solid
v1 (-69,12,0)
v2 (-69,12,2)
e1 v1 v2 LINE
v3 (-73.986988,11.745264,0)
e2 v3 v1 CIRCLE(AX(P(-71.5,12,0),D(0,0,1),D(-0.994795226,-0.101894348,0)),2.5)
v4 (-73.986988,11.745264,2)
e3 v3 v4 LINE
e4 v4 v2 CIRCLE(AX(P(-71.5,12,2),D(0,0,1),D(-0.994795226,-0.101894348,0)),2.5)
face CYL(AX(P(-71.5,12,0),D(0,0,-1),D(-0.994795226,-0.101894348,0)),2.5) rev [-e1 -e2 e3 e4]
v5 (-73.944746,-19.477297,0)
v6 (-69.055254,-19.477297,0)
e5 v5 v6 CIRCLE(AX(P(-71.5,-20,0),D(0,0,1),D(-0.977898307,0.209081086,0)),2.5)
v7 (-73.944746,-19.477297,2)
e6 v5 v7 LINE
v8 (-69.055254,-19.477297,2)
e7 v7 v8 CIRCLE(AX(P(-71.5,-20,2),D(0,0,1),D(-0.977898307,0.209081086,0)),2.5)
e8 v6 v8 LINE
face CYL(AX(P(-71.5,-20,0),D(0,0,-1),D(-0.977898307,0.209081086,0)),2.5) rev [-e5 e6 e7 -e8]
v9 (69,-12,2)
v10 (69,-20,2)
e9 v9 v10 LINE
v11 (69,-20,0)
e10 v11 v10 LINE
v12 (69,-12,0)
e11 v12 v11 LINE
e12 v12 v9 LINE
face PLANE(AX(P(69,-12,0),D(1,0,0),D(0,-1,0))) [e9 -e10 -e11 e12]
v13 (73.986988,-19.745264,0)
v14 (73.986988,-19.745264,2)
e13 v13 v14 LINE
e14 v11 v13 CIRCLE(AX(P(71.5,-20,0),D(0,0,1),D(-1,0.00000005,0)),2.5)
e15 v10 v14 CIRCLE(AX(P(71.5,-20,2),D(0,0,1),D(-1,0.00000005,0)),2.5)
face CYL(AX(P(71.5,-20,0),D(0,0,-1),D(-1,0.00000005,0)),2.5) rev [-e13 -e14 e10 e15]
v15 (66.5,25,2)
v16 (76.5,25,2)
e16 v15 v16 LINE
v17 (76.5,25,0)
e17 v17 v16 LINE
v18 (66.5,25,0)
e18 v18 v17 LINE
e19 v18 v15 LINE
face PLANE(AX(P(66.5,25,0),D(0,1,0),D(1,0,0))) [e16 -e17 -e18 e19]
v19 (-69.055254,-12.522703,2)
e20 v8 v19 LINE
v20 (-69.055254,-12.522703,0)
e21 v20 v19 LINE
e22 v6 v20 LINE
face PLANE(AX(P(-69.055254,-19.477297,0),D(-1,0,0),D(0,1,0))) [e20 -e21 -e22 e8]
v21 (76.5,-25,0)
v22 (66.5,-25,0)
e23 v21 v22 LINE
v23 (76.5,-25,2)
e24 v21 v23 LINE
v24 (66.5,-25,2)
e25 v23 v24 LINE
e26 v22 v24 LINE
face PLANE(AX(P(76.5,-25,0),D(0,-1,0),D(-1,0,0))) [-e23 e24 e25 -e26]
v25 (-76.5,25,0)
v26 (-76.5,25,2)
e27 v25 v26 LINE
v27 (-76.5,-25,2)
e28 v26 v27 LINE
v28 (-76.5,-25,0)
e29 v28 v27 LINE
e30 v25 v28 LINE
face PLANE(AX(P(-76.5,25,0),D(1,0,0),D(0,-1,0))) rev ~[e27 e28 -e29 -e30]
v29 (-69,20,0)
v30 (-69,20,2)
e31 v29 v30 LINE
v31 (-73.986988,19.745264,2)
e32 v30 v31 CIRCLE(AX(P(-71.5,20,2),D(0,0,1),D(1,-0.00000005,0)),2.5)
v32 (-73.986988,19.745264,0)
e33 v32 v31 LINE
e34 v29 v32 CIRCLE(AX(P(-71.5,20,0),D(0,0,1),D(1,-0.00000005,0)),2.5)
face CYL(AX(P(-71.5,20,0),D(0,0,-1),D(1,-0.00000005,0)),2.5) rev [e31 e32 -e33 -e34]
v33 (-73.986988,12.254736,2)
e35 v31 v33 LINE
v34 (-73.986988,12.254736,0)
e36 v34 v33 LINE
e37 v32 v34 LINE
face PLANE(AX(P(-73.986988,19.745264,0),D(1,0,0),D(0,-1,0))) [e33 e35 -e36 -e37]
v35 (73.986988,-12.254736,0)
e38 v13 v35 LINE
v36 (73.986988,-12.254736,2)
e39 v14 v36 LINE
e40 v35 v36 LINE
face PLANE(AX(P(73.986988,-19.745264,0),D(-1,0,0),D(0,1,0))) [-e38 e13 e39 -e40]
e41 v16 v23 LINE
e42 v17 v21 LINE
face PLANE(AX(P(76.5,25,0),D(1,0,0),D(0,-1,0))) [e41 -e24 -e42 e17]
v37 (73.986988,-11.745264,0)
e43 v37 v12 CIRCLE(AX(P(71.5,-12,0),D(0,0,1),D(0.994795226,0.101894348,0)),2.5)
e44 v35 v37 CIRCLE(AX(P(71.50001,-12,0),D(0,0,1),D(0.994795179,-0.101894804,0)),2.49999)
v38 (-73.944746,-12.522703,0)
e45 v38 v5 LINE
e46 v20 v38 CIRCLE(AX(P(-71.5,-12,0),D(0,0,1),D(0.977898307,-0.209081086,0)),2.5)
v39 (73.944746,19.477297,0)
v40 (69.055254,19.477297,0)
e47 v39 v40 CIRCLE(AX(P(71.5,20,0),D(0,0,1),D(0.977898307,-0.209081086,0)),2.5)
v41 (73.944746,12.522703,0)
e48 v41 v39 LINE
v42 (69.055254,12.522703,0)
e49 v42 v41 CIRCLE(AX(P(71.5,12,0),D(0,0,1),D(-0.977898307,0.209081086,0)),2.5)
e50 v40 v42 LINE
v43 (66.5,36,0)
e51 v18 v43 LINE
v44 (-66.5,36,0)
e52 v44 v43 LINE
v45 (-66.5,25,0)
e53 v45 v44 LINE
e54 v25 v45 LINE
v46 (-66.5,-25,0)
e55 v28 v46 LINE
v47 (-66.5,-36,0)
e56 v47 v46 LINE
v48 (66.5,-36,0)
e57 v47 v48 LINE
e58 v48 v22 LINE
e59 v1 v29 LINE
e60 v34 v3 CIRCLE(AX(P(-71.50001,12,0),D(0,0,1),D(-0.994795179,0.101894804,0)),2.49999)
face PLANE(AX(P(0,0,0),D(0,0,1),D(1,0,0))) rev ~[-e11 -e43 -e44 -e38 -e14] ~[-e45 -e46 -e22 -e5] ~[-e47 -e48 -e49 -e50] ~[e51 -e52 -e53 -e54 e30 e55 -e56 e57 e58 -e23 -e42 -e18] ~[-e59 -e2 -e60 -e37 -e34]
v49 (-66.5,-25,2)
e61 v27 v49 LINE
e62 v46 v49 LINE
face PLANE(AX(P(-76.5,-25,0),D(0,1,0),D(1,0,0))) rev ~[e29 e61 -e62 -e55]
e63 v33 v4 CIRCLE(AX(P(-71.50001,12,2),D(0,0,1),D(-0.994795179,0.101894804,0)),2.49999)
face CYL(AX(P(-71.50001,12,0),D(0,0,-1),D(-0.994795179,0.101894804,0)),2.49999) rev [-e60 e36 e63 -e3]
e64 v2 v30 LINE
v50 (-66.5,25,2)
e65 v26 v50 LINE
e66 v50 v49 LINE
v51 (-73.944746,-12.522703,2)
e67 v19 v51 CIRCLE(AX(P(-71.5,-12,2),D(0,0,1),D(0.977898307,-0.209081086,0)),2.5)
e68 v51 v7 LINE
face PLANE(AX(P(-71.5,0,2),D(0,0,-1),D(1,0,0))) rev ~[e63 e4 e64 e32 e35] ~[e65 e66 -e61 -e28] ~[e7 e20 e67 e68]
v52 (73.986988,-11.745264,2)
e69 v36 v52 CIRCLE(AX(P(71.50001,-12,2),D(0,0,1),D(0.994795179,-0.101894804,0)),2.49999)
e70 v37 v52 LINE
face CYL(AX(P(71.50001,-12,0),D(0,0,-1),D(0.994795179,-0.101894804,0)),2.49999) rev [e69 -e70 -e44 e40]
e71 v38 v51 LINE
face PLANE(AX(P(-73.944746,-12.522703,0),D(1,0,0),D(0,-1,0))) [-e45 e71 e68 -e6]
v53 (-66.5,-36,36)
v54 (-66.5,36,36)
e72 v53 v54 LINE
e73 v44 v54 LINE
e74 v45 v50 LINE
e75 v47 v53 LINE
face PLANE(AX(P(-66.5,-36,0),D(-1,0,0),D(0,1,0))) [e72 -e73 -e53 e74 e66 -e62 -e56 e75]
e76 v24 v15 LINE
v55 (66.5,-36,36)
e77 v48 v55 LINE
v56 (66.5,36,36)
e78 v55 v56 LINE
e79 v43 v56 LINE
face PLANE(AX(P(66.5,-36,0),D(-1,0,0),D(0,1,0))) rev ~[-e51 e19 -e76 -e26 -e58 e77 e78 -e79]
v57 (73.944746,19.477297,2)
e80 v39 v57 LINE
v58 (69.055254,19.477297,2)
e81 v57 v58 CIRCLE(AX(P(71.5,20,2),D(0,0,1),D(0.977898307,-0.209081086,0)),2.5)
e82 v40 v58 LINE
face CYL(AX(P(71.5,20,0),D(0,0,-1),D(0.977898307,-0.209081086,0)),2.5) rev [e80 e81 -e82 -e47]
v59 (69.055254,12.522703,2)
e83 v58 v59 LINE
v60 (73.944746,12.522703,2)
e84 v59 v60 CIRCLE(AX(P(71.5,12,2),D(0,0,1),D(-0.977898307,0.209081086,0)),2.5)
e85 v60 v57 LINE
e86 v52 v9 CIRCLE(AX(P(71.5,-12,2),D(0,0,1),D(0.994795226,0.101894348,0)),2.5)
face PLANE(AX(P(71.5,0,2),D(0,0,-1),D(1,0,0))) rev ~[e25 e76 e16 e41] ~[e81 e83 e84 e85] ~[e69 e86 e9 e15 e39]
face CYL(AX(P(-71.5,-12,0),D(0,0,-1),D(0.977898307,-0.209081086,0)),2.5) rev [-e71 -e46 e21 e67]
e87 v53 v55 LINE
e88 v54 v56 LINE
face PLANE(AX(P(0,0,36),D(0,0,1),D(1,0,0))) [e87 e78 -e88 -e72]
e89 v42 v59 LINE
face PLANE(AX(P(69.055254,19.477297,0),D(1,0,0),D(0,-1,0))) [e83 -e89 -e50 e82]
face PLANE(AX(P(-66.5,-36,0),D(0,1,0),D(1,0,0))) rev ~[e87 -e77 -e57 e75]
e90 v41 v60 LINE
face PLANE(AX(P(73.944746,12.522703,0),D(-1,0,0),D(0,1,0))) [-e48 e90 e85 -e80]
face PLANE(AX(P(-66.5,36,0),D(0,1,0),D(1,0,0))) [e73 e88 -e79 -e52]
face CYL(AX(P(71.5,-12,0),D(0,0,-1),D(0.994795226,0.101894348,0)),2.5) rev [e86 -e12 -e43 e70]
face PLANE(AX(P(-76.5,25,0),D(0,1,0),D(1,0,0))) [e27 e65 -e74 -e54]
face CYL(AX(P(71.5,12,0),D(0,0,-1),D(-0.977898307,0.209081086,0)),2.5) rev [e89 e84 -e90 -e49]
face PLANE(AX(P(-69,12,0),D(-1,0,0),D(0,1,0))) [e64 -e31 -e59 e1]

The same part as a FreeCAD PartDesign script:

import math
import FreeCAD as App
import Part
import Sketcher
from FreeCAD import Vector
Q = App.Units.Quantity

doc = App.newDocument("Part")
body = doc.addObject("PartDesign::Body", "Body")

# Sketch on XY plane
sketch1 = body.newObject("Sketcher::SketchObject", "Sketch")
sketch1.AttachmentSupport = (doc.getObject("XY_Plane"), [""])
sketch1.MapMode = "FlatFace"
sketch1.addGeometry([
    Part.LineSegment(Vector(-66, 36, 0), Vector(-66, -36, 0)),
    Part.LineSegment(Vector(-66, -36, 0), Vector(66, -36, 0)),
    Part.LineSegment(Vector(66, -36, 0), Vector(66, 36, 0)),
    Part.LineSegment(Vector(66, 36, 0), Vector(-66, 36, 0)),
], False)
sketch1.addConstraint([
    Sketcher.Constraint("Coincident", 0, 2, 1, 1),
    Sketcher.Constraint("Coincident", 1, 2, 2, 1),
    Sketcher.Constraint("Coincident", 2, 2, 3, 1),
    Sketcher.Constraint("Coincident", 3, 2, 0, 1),
    Sketcher.Constraint("Vertical", 0),
    Sketcher.Constraint("Horizontal", 1),
    Sketcher.Constraint("Vertical", 2),
    Sketcher.Constraint("Horizontal", 3),
    Sketcher.Constraint("Symmetric", 0, 2, 2, 2, -1, 1),
    Sketcher.Constraint("DistanceX", 1, 1, 1, 2, Q("133 mm")),
    Sketcher.Constraint("DistanceY", 0, 2, 0, 1, Q("72 mm")),
])
pad1 = body.newObject("PartDesign::Pad", "Pad")
pad1.Profile = sketch1
pad1.Length = 36

# Sketch on XY plane
sketch2 = body.newObject("Sketcher::SketchObject", "Sketch001")
sketch2.AttachmentSupport = (doc.getObject("XY_Plane"), [""])
sketch2.MapMode = "FlatFace"
sketch2.addGeometry([
    Part.LineSegment(Vector(-76.5, -25, 0), Vector(-76.5, 25, 0)),  # 0
    Part.LineSegment(Vector(-76.5, 25, 0), Vector(-66.5, 25, 0)),  # 1
    Part.LineSegment(Vector(-66.5, 25, 0), Vector(-66.5, -25, 0)),  # 2
    Part.LineSegment(Vector(-66.5, -25, 0), Vector(-76.5, -25, 0)),  # 3
    Part.LineSegment(Vector(-69, 12, 0), Vector(-69, 20, 0)),  # 4
    Part.ArcOfCircle(Part.Circle(Vector(-71.5, 20, 0), Vector(0, 0, 1), 2.5), math.radians(0), math.radians(186)),  # 5
    Part.LineSegment(Vector(-74, 19.7, 0), Vector(-74, 12.3, 0)),  # 6
    Part.ArcOfCircle(Part.Circle(Vector(-71.5, 12, 0), Vector(0, 0, 1), 2.5), math.radians(174.15), math.radians(185.85)),  # 7
    Part.ArcOfCircle(Part.Circle(Vector(-71.5, 12, 0), Vector(0, 0, 1), 2.5), math.radians(-174), math.radians(0)),  # 8
    Part.LineSegment(Vector(-73.9, -12.5, 0), Vector(-73.9, -19.5, 0)),  # 9
    Part.ArcOfCircle(Part.Circle(Vector(-71.5, -20, 0), Vector(0, 0, 1), 2.5), math.radians(168), math.radians(372)),  # 10
    Part.LineSegment(Vector(-69.1, -19.5, 0), Vector(-69.1, -12.5, 0)),  # 11
    Part.ArcOfCircle(Part.Circle(Vector(-71.5, -12, 0), Vector(0, 0, 1), 2.5), math.radians(-12), math.radians(192)),  # 12
], False)
sketch2.addConstraint([
    Sketcher.Constraint("Coincident", 0, 2, 1, 1),
    Sketcher.Constraint("Coincident", 1, 2, 2, 1),
    Sketcher.Constraint("Coincident", 2, 2, 3, 1),
    Sketcher.Constraint("Coincident", 3, 2, 0, 1),
    Sketcher.Constraint("Tangent", 4, 2, 5, 1),
    Sketcher.Constraint("Coincident", 5, 2, 6, 1),
    Sketcher.Constraint("Coincident", 6, 2, 7, 1),
    Sketcher.Constraint("Tangent", 7, 2, 8, 1),
    Sketcher.Constraint("Tangent", 8, 2, 4, 1),
    Sketcher.Constraint("Coincident", 9, 2, 10, 1),
    Sketcher.Constraint("Coincident", 10, 2, 11, 1),
    Sketcher.Constraint("Coincident", 11, 2, 12, 1),
    Sketcher.Constraint("Coincident", 12, 2, 9, 1),
    Sketcher.Constraint("Vertical", 0),
    Sketcher.Constraint("Horizontal", 1),
    Sketcher.Constraint("Vertical", 2),
    Sketcher.Constraint("Horizontal", 3),
    Sketcher.Constraint("Vertical", 4),
    Sketcher.Constraint("Vertical", 6),
    Sketcher.Constraint("Vertical", 9),
    Sketcher.Constraint("Vertical", 11),
    Sketcher.Constraint("Equal", 5, 8),
    Sketcher.Constraint("Equal", 8, 10),
    Sketcher.Constraint("Equal", 10, 12),
    Sketcher.Constraint("Symmetric", 5, 3, 10, 3, -1),
    Sketcher.Constraint("Symmetric", 7, 3, 12, 3, -1),
    Sketcher.Constraint("Horizontal", 7, 3, 8, 2),
    Sketcher.Constraint("Horizontal", 9, 2, 10, 2),
    Sketcher.Constraint("Vertical", 6, 2, 7, 2),
    Sketcher.Constraint("Radius", 5, Q("2.5 mm")),
    Sketcher.Constraint("DistanceX", 1, 1, 1, 2, Q("10 mm")),
    Sketcher.Constraint("DistanceY", 0, 1, 0, 2, Q("50 mm")),
    Sketcher.Constraint("DistanceY", 4, 1, 4, 2, Q("8 mm")),
    Sketcher.Constraint("DistanceY", -1, 1, 5, 3, Q("20 mm")),
    Sketcher.Constraint("DistanceY", -1, 1, 0, 2, Q("25 mm")),
    Sketcher.Constraint("DistanceX", 4, 2, -1, 1, Q("69 mm")),
    Sketcher.Constraint("DistanceX", 0, 2, 5, 3, Q("5 mm")),
    Sketcher.Constraint("DistanceY", 6, 2, 6, 1, Q("7.490528 mm")),
    Sketcher.Constraint("DistanceY", 9, 2, 9, 1, Q("6.954594 mm")),
])
pad2 = body.newObject("PartDesign::Pad", "Pad001")
pad2.Profile = sketch2
pad2.Length = 2

# Sketch on XY plane
sketch3 = body.newObject("Sketcher::SketchObject", "Sketch002")
sketch3.AttachmentSupport = (doc.getObject("XY_Plane"), [""])
sketch3.MapMode = "FlatFace"
sketch3.addGeometry([
    Part.LineSegment(Vector(66.5, 25, 0), Vector(76.5, 25, 0)),  # 0
    Part.LineSegment(Vector(76.5, 25, 0), Vector(76.5, -25, 0)),  # 1
    Part.LineSegment(Vector(76.5, -25, 0), Vector(66.5, -25, 0)),  # 2
    Part.LineSegment(Vector(66.5, -25, 0), Vector(66.5, 25, 0)),  # 3
    Part.LineSegment(Vector(73.9, 12.5, 0), Vector(73.9, 19.5, 0)),  # 4
    Part.ArcOfCircle(Part.Circle(Vector(71.5, 20, 0), Vector(0, 0, 1), 2.5), math.radians(-12), math.radians(192)),  # 5
    Part.LineSegment(Vector(69.1, 19.5, 0), Vector(69.1, 12.5, 0)),  # 6
    Part.ArcOfCircle(Part.Circle(Vector(71.5, 12, 0), Vector(0, 0, 1), 2.5), math.radians(168), math.radians(372)),  # 7
    Part.LineSegment(Vector(69, -12, 0), Vector(69, -20, 0)),  # 8
    Part.ArcOfCircle(Part.Circle(Vector(71.5, -20, 0), Vector(0, 0, 1), 2.5), math.radians(180), math.radians(366)),  # 9
    Part.LineSegment(Vector(74, -19.7, 0), Vector(74, -12.3, 0)),  # 10
    Part.ArcOfCircle(Part.Circle(Vector(71.5, -12, 0), Vector(0, 0, 1), 2.5), math.radians(-5.85), math.radians(5.85)),  # 11
    Part.ArcOfCircle(Part.Circle(Vector(71.5, -12, 0), Vector(0, 0, 1), 2.5), math.radians(6), math.radians(180)),  # 12
], False)
sketch3.addConstraint([
    Sketcher.Constraint("Coincident", 0, 2, 1, 1),
    Sketcher.Constraint("Coincident", 1, 2, 2, 1),
    Sketcher.Constraint("Coincident", 2, 2, 3, 1),
    Sketcher.Constraint("Coincident", 3, 2, 0, 1),
    Sketcher.Constraint("Coincident", 4, 2, 5, 1),
    Sketcher.Constraint("Coincident", 5, 2, 6, 1),
    Sketcher.Constraint("Coincident", 6, 2, 7, 1),
    Sketcher.Constraint("Coincident", 7, 2, 4, 1),
    Sketcher.Constraint("Tangent", 8, 2, 9, 1),
    Sketcher.Constraint("Coincident", 9, 2, 10, 1),
    Sketcher.Constraint("Coincident", 10, 2, 11, 1),
    Sketcher.Constraint("Tangent", 11, 2, 12, 1),
    Sketcher.Constraint("Tangent", 12, 2, 8, 1),
    Sketcher.Constraint("Horizontal", 0),
    Sketcher.Constraint("Vertical", 1),
    Sketcher.Constraint("Horizontal", 2),
    Sketcher.Constraint("Vertical", 3),
    Sketcher.Constraint("Vertical", 4),
    Sketcher.Constraint("Vertical", 6),
    Sketcher.Constraint("Vertical", 8),
    Sketcher.Constraint("Vertical", 10),
    Sketcher.Constraint("Equal", 5, 7),
    Sketcher.Constraint("Equal", 7, 9),
    Sketcher.Constraint("Equal", 9, 12),
    Sketcher.Constraint("Symmetric", 5, 3, 9, 3, -1),
    Sketcher.Constraint("Symmetric", 7, 3, 11, 3, -1),
    Sketcher.Constraint("Horizontal", 4, 2, 5, 2),
    Sketcher.Constraint("Horizontal", 6, 2, 7, 2),
    Sketcher.Constraint("Vertical", 10, 2, 11, 2),
    Sketcher.Constraint("Radius", 5, Q("2.5 mm")),
    Sketcher.Constraint("DistanceX", 0, 1, 0, 2, Q("10 mm")),
    Sketcher.Constraint("DistanceY", 1, 2, 1, 1, Q("50 mm")),
    Sketcher.Constraint("DistanceY", 8, 2, 8, 1, Q("8 mm")),
    Sketcher.Constraint("DistanceY", -1, 1, 5, 3, Q("20 mm")),
    Sketcher.Constraint("DistanceY", -1, 1, 0, 2, Q("25 mm")),
    Sketcher.Constraint("DistanceX", -1, 1, 8, 2, Q("69 mm")),
    Sketcher.Constraint("DistanceX", 5, 3, 0, 2, Q("5 mm")),
    Sketcher.Constraint("DistanceY", 4, 1, 4, 2, Q("6.954594 mm")),
    Sketcher.Constraint("DistanceY", 10, 1, 10, 2, Q("7.490528 mm")),
])
pad3 = body.newObject("PartDesign::Pad", "Pad002")
pad3.Profile = sketch3
pad3.Length = 2

doc.recompute()
